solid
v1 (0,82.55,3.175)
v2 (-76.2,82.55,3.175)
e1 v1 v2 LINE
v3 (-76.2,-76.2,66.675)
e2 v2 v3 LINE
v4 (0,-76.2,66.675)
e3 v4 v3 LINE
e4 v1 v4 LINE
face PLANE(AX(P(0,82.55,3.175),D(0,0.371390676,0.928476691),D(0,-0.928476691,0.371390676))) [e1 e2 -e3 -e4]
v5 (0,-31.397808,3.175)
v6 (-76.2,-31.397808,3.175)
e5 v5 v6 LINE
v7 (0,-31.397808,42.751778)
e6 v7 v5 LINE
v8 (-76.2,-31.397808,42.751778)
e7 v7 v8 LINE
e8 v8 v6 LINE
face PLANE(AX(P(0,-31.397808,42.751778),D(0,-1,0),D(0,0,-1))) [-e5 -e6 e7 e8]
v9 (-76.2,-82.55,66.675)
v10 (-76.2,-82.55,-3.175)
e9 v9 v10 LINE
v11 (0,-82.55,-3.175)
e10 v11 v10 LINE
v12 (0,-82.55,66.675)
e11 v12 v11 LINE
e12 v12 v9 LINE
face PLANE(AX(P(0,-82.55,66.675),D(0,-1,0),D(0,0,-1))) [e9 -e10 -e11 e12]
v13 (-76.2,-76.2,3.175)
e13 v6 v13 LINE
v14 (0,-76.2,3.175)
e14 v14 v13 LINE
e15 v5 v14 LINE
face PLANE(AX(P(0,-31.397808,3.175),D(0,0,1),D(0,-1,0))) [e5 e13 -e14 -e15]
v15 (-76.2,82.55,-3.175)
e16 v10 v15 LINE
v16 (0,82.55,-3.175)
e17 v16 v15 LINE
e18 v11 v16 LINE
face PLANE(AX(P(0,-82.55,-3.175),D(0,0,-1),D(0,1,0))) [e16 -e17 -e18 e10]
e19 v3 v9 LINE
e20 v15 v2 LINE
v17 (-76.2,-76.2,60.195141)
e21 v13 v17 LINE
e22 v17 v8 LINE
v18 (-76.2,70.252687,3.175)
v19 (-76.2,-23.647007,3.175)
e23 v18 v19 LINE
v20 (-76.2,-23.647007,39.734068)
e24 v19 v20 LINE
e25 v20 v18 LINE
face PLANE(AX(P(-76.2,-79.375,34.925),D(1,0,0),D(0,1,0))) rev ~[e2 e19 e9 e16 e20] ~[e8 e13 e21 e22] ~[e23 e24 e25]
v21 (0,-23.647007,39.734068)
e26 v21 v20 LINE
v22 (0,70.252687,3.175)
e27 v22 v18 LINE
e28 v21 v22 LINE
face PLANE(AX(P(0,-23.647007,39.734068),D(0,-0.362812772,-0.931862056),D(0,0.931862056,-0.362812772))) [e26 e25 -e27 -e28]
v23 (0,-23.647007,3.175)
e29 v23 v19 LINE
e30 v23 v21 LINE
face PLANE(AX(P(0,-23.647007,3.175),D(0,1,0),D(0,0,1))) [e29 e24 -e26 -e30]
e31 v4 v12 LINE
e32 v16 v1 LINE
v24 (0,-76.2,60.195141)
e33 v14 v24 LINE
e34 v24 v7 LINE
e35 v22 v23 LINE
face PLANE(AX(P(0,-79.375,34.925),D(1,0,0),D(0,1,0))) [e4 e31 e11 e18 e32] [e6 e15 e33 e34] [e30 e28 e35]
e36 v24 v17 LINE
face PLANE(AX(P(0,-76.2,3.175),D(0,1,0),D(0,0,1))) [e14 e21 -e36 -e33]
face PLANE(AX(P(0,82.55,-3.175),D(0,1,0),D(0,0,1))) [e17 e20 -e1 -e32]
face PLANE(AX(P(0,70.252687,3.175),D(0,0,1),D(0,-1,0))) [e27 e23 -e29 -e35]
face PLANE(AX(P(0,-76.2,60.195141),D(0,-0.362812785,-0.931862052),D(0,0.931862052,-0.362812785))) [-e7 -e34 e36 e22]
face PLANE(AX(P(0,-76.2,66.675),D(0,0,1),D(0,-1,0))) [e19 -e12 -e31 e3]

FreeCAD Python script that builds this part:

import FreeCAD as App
import Part
import Sketcher

V = App.Vector
Q = App.Units.Quantity

doc = App.newDocument("Part")
params = doc.addObject("Spreadsheet::Sheet", "Params")
for row, (alias, value) in enumerate([
    ("sketch1_width", "6.5 in"),
    ("sketch1_height", "2.75 in"),
    ("pad1_length", "3 in"),
], start=1):
    params.set(f"A{row}", alias)
    params.set(f"B{row}", "=" + value)
    params.setAlias(f"B{row}", alias)

body = doc.addObject("PartDesign::Body", "Body")

sketch1 = body.newObject("Sketcher::SketchObject", "Sketch")
sketch1.AttachmentSupport = (doc.getObject("YZ_Plane"), [""])
sketch1.MapMode = "FlatFace"
sketch1.addGeometry(Part.LineSegment(V(-83, 67, 0), V(-83, -3, 0)), False)
sketch1.addGeometry(Part.LineSegment(V(-83, -3, 0), V(83, -3, 0)), False)
sketch1.addGeometry(Part.LineSegment(V(83, -3, 0), V(83, 3, 0)), False)
sketch1.addGeometry(Part.LineSegment(V(83, 3, 0), V(-76, 67, 0)), False)
sketch1.addGeometry(Part.LineSegment(V(-76, 67, 0), V(-83, 67, 0)), False)
sketch1.addGeometry(Part.LineSegment(V(70, 3, 0), V(-24, 3, 0)), False)
sketch1.addGeometry(Part.LineSegment(V(-24, 3, 0), V(-24, 40, 0)), False)
sketch1.addGeometry(Part.LineSegment(V(-24, 40, 0), V(70, 3, 0)), False)
sketch1.addGeometry(Part.LineSegment(V(-31, 3, 0), V(-76, 3, 0)), False)
sketch1.addGeometry(Part.LineSegment(V(-76, 3, 0), V(-76, 60, 0)), False)
sketch1.addGeometry(Part.LineSegment(V(-76, 60, 0), V(-31, 43, 0)), False)
sketch1.addGeometry(Part.LineSegment(V(-31, 43, 0), V(-31, 3, 0)), False)
sketch1.addConstraint(Sketcher.Constraint("Coincident", 0, 2, 1, 1))
sketch1.addConstraint(Sketcher.Constraint("Coincident", 1, 2, 2, 1))
sketch1.addConstraint(Sketcher.Constraint("Coincident", 2, 2, 3, 1))
sketch1.addConstraint(Sketcher.Constraint("Coincident", 3, 2, 4, 1))
sketch1.addConstraint(Sketcher.Constraint("Coincident", 4, 2, 0, 1))
sketch1.addConstraint(Sketcher.Constraint("Coincident", 5, 2, 6, 1))
sketch1.addConstraint(Sketcher.Constraint("Coincident", 6, 2, 7, 1))
sketch1.addConstraint(Sketcher.Constraint("Coincident", 7, 2, 5, 1))
sketch1.addConstraint(Sketcher.Constraint("Coincident", 8, 2, 9, 1))
sketch1.addConstraint(Sketcher.Constraint("Coincident", 9, 2, 10, 1))
sketch1.addConstraint(Sketcher.Constraint("Coincident", 10, 2, 11, 1))
sketch1.addConstraint(Sketcher.Constraint("Coincident", 11, 2, 8, 1))
sketch1.addConstraint(Sketcher.Constraint("Vertical", 0))
sketch1.addConstraint(Sketcher.Constraint("Horizontal", 1))
sketch1.addConstraint(Sketcher.Constraint("Vertical", 2))
sketch1.addConstraint(Sketcher.Constraint("Horizontal", 4))
sketch1.addConstraint(Sketcher.Constraint("Horizontal", 5))
sketch1.addConstraint(Sketcher.Constraint("Vertical", 6))
sketch1.addConstraint(Sketcher.Constraint("Horizontal", 8))
sketch1.addConstraint(Sketcher.Constraint("Vertical", 9))
sketch1.addConstraint(Sketcher.Constraint("Vertical", 11))
sketch1.addConstraint(Sketcher.Constraint("Symmetric", 0, 2, 2, 2, -1, 1))
sketch1.addConstraint(Sketcher.Constraint("Parallel", 7, 10))
sketch1.addConstraint(Sketcher.Constraint("Horizontal", 2, 2, 5, 2))
sketch1.addConstraint(Sketcher.Constraint("Horizontal", 7, 2, 8, 2))
sketch1.addConstraint(Sketcher.Constraint("Vertical", 3, 2, 8, 2))
sketch1.addConstraint(Sketcher.Constraint("Equal", 4, 2))
sketch1.addConstraint(Sketcher.Constraint("DistanceX", 1, 1, 1, 2, Q("6.5 in")))
sketch1.addConstraint(Sketcher.Constraint("DistanceX", 3, 2, -1, 1, Q("3 in")))
sketch1.addConstraint(Sketcher.Constraint("DistanceY", 0, 2, 0, 1, Q("2.75 in")))
sketch1.addConstraint(Sketcher.Constraint("DistanceY", 6, 1, 6, 2, 36.559068))
sketch1.addConstraint(Sketcher.Constraint("DistanceY", 9, 1, 9, 2, 57.020141))
sketch1.addConstraint(Sketcher.Constraint("DistanceY", 11, 2, 11, 1, 39.576778))
sketch1.addConstraint(Sketcher.Constraint("DistanceX", 10, 2, 6, 2, 7.750801))
sketch1.addConstraint(Sketcher.Constraint("Distance", 7, 100.765659))
sketch1.setExpression("Constraints[27]", "Params.sketch1_width")
sketch1.setExpression("Constraints[29]", "Params.sketch1_height")
pad1 = body.newObject("PartDesign::Pad", "Pad")
pad1.Profile = sketch1
pad1.setExpression("Length", "Params.pad1_length")
pad1.Reversed = True

doc.recompute()
